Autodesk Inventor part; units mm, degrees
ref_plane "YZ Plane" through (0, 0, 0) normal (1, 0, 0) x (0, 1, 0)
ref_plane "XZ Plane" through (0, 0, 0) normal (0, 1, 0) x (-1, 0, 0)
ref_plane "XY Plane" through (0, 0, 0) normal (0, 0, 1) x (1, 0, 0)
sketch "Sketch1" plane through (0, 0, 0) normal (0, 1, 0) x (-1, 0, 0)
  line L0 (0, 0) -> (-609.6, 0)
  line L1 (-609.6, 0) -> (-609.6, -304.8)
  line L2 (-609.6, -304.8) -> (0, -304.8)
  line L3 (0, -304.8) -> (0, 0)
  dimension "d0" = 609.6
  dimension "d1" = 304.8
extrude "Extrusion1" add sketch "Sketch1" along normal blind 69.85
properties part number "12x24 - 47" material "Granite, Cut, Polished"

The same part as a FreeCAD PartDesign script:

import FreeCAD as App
import Part
import Sketcher
Q = App.Units.Quantity


def add_polygon(sketch, points):
    """Adds a closed chain of lines whose ends are joined by coincident constraints."""
    first, n = sketch.GeometryCount, len(points)
    for a, b in zip(points, points[1:] + points[:1]):
        sketch.addGeometry(Part.LineSegment(App.Vector(*a, 0), App.Vector(*b, 0)), False)
    for i in range(n):
        sketch.addConstraint(Sketcher.Constraint("Coincident", first + i, 2, first + (i + 1) % n, 1))

doc = App.newDocument("Part")
body = doc.addObject("PartDesign::Body", "Body")

sketch1 = body.newObject("Sketcher::SketchObject", "Sketch")
sketch1.AttachmentSupport = (doc.getObject("XZ_Plane"), [""])
sketch1.MapMode = "FlatFace"
add_polygon(sketch1, [(0, -304.8), (0, 0), (609.6, 0), (609.6, -304.8)])
sketch1.addConstraint(Sketcher.Constraint("Vertical", 0))
sketch1.addConstraint(Sketcher.Constraint("Horizontal", 1))
sketch1.addConstraint(Sketcher.Constraint("Vertical", 2))
sketch1.addConstraint(Sketcher.Constraint("Horizontal", 3))
sketch1.addConstraint(Sketcher.Constraint("Coincident", 0, 2, -1, 1))
sketch1.addConstraint(Sketcher.Constraint("DistanceX", 1, 1, 1, 2, Q("24 in")))
sketch1.addConstraint(Sketcher.Constraint("DistanceY", 0, 1, 0, 2, Q("12 in")))
pad1 = body.newObject("PartDesign::Pad", "Pad")
pad1.Profile = sketch1
pad1.Length = Q("2.75 in")
pad1.Reversed = True

doc.recompute()
